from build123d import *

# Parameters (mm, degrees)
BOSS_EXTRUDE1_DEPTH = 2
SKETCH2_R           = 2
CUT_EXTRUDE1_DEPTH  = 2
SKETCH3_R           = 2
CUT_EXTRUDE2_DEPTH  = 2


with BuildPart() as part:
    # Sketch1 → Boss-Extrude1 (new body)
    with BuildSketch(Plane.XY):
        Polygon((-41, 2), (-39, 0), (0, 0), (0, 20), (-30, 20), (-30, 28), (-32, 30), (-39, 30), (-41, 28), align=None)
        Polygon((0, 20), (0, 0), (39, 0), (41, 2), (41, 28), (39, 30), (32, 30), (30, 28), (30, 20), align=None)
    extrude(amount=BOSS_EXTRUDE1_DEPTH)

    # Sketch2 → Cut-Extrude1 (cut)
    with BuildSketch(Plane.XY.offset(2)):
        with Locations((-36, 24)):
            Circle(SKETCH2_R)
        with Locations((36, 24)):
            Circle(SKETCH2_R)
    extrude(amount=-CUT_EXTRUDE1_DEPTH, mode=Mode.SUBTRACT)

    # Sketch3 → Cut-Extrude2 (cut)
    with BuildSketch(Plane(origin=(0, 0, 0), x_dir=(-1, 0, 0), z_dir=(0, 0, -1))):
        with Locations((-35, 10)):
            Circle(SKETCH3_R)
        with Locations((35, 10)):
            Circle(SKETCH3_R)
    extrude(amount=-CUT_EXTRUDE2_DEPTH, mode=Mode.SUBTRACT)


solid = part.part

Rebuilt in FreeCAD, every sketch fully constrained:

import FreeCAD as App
import Part
import Sketcher
Q = App.Units.Quantity

doc = App.newDocument("Part")
body = doc.addObject("PartDesign::Body", "Body")

# Sketch on XY plane
sketch1 = doc.addObject("Sketcher::SketchObject", "Sketch")
body.addObject(sketch1)
sketch1.AttachmentSupport = (doc.XY_Plane, [""])
sketch1.MapMode = "FlatFace"
sketch1.addGeometry([
    Part.LineSegment(App.Vector(-41, 2, 0), App.Vector(-39, 0, 0)),  # 0
    Part.LineSegment(App.Vector(-39, 0, 0), App.Vector(39, 0, 0)),  # 1
    Part.LineSegment(App.Vector(39, 0, 0), App.Vector(41, 2, 0)),  # 2
    Part.LineSegment(App.Vector(41, 2, 0), App.Vector(41, 28, 0)),  # 3
    Part.LineSegment(App.Vector(41, 28, 0), App.Vector(39, 30, 0)),  # 4
    Part.LineSegment(App.Vector(39, 30, 0), App.Vector(32, 30, 0)),  # 5
    Part.LineSegment(App.Vector(32, 30, 0), App.Vector(30, 28, 0)),  # 6
    Part.LineSegment(App.Vector(30, 28, 0), App.Vector(30, 20, 0)),  # 7
    Part.LineSegment(App.Vector(30, 20, 0), App.Vector(-30, 20, 0)),  # 8
    Part.LineSegment(App.Vector(-30, 20, 0), App.Vector(-30, 28, 0)),  # 9
    Part.LineSegment(App.Vector(-30, 28, 0), App.Vector(-32, 30, 0)),  # 10
    Part.LineSegment(App.Vector(-32, 30, 0), App.Vector(-39, 30, 0)),  # 11
    Part.LineSegment(App.Vector(-39, 30, 0), App.Vector(-41, 28, 0)),  # 12
    Part.LineSegment(App.Vector(-41, 28, 0), App.Vector(-41, 2, 0)),  # 13
], False)
sketch1.addConstraint([
    Sketcher.Constraint("Coincident", 0, 2, 1, 1),
    Sketcher.Constraint("Coincident", 1, 2, 2, 1),
    Sketcher.Constraint("Coincident", 2, 2, 3, 1),
    Sketcher.Constraint("Coincident", 3, 2, 4, 1),
    Sketcher.Constraint("Coincident", 4, 2, 5, 1),
    Sketcher.Constraint("Coincident", 5, 2, 6, 1),
    Sketcher.Constraint("Coincident", 6, 2, 7, 1),
    Sketcher.Constraint("Coincident", 7, 2, 8, 1),
    Sketcher.Constraint("Coincident", 8, 2, 9, 1),
    Sketcher.Constraint("Coincident", 9, 2, 10, 1),
    Sketcher.Constraint("Coincident", 10, 2, 11, 1),
    Sketcher.Constraint("Coincident", 11, 2, 12, 1),
    Sketcher.Constraint("Coincident", 12, 2, 13, 1),
    Sketcher.Constraint("Coincident", 13, 2, 0, 1),
    Sketcher.Constraint("Horizontal", 1),
    Sketcher.Constraint("Vertical", 3),
    Sketcher.Constraint("Horizontal", 5),
    Sketcher.Constraint("Vertical", 7),
    Sketcher.Constraint("Horizontal", 8),
    Sketcher.Constraint("Vertical", 9),
    Sketcher.Constraint("Horizontal", 11),
    Sketcher.Constraint("Vertical", 13),
    Sketcher.Constraint("Symmetric", 0, 2, 1, 2, -1, 1),
    Sketcher.Constraint("Symmetric", 6, 2, 9, 2, -2),
    Sketcher.Constraint("Symmetric", 5, 2, 10, 2, -2),
    Sketcher.Constraint("Symmetric", 3, 2, 12, 2, -2),
    Sketcher.Constraint("Perpendicular", 0, 2),
    Sketcher.Constraint("Perpendicular", 2, 4),
    Sketcher.Constraint("Perpendicular", 4, 6),
    Sketcher.Constraint("Perpendicular", 6, 10),
    Sketcher.Constraint("Perpendicular", 10, 12),
    Sketcher.Constraint("Horizontal", 3, 2, 6, 2),
    Sketcher.Constraint("Vertical", 1, 2, 4, 2),
    Sketcher.Constraint("DistanceX", 1, 1, 1, 2, Q("78 mm")),
    Sketcher.Constraint("DistanceX", 5, 2, 5, 1, Q("7 mm")),
    Sketcher.Constraint("DistanceX", 8, 2, 8, 1, Q("60 mm")),
    Sketcher.Constraint("DistanceY", 3, 1, 3, 2, Q("26 mm")),
    Sketcher.Constraint("DistanceY", 7, 2, 7, 1, Q("8 mm")),
])
pad1 = doc.addObject("PartDesign::Pad", "Pad")
body.addObject(pad1)
pad1.Profile = sketch1
pad1.Length = 2

# Sketch on XY plane
sketch2 = doc.addObject("Sketcher::SketchObject", "Sketch001")
body.addObject(sketch2)
sketch2.AttachmentSupport = (doc.XY_Plane, [""])
sketch2.MapMode = "FlatFace"
sketch2.AttachmentOffset = App.Placement(App.Vector(0, 0, 2), App.Rotation())
sketch2.addGeometry([
    Part.Circle(App.Vector(-36, 24, 0), App.Vector(0, 0, 1), 2),
    Part.Circle(App.Vector(36, 24, 0), App.Vector(0, 0, 1), 2),
], False)
sketch2.addConstraint([
    Sketcher.Constraint("Equal", 0, 1),
    Sketcher.Constraint("Symmetric", 0, 3, 1, 3, -2),
    Sketcher.Constraint("Diameter", 0, Q("4 mm")),
    Sketcher.Constraint("DistanceX", 0, 3, -1, 1, Q("36 mm")),
    Sketcher.Constraint("DistanceY", -1, 1, 0, 3, Q("24 mm")),
])
pocket1 = doc.addObject("PartDesign::Pocket", "Pocket")
body.addObject(pocket1)
pocket1.Profile = sketch2
pocket1.Length = 2

# Sketch on XY plane
sketch3 = doc.addObject("Sketcher::SketchObject", "Sketch002")
body.addObject(sketch3)
sketch3.AttachmentSupport = (doc.XY_Plane, [""])
sketch3.MapMode = "FlatFace"
sketch3.addGeometry([
    Part.Circle(App.Vector(35, 10, 0), App.Vector(0, 0, 1), 2),
    Part.Circle(App.Vector(-35, 10, 0), App.Vector(0, 0, 1), 2),
], False)
sketch3.addConstraint([
    Sketcher.Constraint("Equal", 0, 1),
    Sketcher.Constraint("Symmetric", 0, 3, 1, 3, -2),
    Sketcher.Constraint("Diameter", 0, Q("4 mm")),
    Sketcher.Constraint("DistanceX", -1, 1, 0, 3, Q("35 mm")),
    Sketcher.Constraint("DistanceY", -1, 1, 0, 3, Q("10 mm")),
])
pocket2 = doc.addObject("PartDesign::Pocket", "Pocket001")
body.addObject(pocket2)
pocket2.Profile = sketch3
pocket2.Length = 2
pocket2.Reversed = True

doc.recompute()
